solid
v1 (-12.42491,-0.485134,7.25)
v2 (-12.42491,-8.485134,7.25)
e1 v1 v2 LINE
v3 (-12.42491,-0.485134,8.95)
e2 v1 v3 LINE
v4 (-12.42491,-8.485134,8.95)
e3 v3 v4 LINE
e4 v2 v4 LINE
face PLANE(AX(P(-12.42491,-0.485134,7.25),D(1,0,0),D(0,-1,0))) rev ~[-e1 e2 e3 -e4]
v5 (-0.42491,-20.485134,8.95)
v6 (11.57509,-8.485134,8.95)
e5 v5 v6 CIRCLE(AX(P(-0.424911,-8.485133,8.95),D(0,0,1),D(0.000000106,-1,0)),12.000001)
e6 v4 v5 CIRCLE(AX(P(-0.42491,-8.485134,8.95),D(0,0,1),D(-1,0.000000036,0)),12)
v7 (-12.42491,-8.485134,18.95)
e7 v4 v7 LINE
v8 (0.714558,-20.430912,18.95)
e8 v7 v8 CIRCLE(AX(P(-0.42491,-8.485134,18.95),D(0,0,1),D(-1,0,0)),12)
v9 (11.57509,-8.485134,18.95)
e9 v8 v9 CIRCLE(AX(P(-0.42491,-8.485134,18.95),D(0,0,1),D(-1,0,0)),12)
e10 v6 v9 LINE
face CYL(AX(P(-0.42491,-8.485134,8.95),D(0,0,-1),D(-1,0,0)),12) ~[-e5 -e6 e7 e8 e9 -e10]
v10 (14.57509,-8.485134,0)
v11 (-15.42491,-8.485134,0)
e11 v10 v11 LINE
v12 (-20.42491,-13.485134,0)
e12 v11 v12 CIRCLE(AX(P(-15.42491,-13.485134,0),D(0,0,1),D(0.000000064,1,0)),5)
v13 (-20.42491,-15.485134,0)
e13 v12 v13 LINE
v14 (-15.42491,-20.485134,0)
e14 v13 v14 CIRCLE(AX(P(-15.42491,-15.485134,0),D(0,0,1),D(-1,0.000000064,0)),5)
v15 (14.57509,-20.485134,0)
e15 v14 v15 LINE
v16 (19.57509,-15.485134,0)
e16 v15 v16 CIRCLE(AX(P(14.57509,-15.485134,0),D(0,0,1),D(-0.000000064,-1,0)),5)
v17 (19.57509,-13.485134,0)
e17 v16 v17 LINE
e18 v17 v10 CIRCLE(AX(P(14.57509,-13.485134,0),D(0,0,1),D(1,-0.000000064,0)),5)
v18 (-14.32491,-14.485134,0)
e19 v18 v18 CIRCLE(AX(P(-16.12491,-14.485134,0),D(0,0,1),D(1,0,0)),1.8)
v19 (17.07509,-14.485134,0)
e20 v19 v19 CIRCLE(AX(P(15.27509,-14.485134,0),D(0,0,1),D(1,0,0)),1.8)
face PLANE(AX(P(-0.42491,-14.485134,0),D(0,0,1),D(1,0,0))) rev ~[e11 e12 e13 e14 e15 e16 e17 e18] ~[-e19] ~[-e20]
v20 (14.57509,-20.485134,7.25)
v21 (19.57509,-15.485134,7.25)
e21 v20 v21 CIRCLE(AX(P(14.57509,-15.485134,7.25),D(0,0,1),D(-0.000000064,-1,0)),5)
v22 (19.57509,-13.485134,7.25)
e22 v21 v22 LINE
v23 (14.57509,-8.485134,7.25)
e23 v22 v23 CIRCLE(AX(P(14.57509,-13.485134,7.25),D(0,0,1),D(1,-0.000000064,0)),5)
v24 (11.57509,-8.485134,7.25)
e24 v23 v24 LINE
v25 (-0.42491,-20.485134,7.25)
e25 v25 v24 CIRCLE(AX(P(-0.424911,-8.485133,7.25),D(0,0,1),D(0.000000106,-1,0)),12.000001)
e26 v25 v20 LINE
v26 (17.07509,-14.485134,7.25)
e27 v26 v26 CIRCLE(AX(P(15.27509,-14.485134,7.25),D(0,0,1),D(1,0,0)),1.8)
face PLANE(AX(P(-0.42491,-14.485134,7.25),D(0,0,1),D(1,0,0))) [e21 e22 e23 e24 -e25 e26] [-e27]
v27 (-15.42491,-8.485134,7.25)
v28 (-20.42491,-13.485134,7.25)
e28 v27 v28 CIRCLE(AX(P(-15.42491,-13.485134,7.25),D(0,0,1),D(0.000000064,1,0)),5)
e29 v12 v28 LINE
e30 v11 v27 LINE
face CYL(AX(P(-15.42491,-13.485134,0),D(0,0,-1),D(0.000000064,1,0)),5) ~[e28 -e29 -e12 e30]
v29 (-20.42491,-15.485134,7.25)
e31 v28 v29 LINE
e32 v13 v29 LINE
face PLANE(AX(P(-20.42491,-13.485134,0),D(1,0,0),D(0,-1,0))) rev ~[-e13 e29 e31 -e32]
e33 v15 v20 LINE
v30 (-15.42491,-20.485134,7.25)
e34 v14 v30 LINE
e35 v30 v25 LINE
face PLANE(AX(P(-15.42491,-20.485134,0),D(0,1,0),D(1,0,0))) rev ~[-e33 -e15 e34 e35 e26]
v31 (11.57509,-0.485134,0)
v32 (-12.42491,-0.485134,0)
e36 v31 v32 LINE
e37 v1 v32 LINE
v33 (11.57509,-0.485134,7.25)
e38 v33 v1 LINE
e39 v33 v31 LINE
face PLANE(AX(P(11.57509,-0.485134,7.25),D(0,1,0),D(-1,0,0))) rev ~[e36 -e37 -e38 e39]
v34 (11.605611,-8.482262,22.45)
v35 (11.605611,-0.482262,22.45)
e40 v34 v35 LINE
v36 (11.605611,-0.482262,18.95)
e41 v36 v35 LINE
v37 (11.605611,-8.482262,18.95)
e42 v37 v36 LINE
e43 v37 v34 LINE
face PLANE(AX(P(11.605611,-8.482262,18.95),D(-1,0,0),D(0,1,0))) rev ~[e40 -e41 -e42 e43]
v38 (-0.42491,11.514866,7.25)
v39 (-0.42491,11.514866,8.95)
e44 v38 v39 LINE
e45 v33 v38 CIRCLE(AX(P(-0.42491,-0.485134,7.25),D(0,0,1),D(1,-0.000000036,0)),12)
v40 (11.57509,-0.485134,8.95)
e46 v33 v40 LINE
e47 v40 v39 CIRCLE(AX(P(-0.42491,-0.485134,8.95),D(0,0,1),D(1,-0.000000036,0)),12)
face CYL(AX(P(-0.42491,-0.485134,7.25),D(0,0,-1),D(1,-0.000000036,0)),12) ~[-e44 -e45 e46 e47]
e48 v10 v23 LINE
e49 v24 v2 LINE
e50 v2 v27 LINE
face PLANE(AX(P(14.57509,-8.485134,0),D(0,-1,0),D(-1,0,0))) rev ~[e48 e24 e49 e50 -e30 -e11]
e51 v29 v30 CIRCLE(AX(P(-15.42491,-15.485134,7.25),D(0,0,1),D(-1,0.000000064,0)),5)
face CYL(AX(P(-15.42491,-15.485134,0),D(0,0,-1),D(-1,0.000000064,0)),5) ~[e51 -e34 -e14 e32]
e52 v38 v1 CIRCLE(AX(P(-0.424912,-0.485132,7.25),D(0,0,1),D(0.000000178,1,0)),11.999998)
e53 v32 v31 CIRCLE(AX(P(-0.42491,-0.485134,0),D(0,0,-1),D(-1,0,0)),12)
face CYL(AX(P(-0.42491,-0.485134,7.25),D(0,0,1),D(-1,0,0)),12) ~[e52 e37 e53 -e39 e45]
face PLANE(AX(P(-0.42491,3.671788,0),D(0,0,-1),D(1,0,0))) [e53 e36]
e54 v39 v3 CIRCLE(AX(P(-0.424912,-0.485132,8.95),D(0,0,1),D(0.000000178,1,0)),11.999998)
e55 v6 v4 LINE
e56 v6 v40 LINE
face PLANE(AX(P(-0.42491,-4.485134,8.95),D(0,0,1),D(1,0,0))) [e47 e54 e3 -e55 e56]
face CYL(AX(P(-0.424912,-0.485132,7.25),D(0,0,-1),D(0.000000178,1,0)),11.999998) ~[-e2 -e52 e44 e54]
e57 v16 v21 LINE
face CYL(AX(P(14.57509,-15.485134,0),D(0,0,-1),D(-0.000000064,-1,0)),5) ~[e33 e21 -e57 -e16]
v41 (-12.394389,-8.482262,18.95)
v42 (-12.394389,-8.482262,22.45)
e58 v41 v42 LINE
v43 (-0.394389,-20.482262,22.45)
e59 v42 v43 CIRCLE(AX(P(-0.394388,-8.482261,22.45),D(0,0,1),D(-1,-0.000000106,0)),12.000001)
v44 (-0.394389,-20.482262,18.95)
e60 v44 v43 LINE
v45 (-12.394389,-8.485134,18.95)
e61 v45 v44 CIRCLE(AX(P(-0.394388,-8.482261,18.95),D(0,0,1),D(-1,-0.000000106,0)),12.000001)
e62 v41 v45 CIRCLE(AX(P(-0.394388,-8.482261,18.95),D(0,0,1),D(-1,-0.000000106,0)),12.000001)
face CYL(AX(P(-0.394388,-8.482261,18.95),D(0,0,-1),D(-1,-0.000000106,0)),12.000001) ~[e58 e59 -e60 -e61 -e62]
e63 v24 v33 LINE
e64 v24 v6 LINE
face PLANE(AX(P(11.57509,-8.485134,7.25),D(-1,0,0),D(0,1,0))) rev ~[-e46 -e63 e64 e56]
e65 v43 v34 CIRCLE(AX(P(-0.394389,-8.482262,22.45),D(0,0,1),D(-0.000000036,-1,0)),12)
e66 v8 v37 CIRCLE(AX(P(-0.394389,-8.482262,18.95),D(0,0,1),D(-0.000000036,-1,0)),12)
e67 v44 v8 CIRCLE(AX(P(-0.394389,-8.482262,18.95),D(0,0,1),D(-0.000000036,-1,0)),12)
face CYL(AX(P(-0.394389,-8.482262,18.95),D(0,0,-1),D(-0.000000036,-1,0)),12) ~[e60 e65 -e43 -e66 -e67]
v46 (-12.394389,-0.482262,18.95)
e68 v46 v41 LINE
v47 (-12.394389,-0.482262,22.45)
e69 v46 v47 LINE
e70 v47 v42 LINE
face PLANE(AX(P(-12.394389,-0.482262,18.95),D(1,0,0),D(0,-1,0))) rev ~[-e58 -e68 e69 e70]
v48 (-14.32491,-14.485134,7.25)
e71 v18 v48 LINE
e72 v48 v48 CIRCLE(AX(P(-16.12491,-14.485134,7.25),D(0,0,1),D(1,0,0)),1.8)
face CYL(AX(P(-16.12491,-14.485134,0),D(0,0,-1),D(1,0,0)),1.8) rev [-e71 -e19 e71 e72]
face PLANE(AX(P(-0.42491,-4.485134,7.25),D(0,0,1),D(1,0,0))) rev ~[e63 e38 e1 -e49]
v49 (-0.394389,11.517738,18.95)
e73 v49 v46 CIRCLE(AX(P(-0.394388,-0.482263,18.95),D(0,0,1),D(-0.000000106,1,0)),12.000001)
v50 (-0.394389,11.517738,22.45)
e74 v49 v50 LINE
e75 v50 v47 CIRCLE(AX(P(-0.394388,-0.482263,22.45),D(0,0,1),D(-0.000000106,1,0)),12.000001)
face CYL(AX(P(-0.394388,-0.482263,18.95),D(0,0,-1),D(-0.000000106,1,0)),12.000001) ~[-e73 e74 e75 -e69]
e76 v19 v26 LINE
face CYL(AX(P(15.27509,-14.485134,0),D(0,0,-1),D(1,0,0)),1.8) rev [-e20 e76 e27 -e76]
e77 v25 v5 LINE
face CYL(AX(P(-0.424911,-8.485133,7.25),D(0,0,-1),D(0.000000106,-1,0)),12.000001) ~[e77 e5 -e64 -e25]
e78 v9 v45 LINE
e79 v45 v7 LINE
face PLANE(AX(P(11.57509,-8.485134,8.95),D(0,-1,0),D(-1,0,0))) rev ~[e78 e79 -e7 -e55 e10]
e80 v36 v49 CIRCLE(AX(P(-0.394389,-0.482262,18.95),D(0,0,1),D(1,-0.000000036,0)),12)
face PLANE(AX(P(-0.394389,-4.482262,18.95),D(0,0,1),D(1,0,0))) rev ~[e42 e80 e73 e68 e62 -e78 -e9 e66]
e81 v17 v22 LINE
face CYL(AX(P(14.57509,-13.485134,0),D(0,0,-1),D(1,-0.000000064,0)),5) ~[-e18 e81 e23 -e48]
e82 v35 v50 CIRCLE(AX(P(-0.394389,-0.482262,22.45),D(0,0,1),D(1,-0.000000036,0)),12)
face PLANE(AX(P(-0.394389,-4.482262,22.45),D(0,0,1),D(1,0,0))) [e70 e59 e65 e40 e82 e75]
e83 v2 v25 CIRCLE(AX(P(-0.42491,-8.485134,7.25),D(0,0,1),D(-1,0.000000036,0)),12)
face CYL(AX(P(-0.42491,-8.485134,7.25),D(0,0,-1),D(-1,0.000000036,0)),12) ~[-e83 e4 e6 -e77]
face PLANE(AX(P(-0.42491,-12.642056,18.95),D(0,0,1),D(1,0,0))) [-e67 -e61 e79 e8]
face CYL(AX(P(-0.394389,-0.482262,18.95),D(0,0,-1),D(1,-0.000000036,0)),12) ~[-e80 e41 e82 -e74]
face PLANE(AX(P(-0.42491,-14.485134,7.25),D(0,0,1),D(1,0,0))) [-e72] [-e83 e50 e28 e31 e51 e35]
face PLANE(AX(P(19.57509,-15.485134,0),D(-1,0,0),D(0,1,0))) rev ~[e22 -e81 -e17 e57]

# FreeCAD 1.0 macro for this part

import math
import FreeCAD as App
import Part
import Sketcher
from FreeCAD import Vector

doc = App.newDocument("Part")
body = doc.addObject("PartDesign::Body", "Body")

sketch1 = body.newObject("Sketcher::SketchObject", "Sketch")
sketch1.AttachmentSupport = (doc.getObject("XY_Plane"), [""])
sketch1.MapMode = "FlatFace"
sketch1.addGeometry([
    Part.LineSegment(Vector(14.57509, -8.485134, 0), Vector(-15.42491, -8.485134, 0)),
    Part.ArcOfCircle(Part.Circle(Vector(-15.42491, -13.485134, 0), Vector(0, 0, 1), 5), math.radians(89.999996), math.radians(180.000004)),
    Part.LineSegment(Vector(-20.42491, -13.485134, 0), Vector(-20.42491, -15.485134, 0)),
    Part.ArcOfCircle(Part.Circle(Vector(-15.42491, -15.485134, 0), Vector(0, 0, 1), 5), math.radians(179.999996), math.radians(270.000004)),
    Part.LineSegment(Vector(-15.42491, -20.485134, 0), Vector(14.57509, -20.485134, 0)),
    Part.ArcOfCircle(Part.Circle(Vector(14.57509, -15.485134, 0), Vector(0, 0, 1), 5), math.radians(-90.000004), math.radians(0.000004)),
    Part.LineSegment(Vector(19.57509, -15.485134, 0), Vector(19.57509, -13.485134, 0)),
    Part.ArcOfCircle(Part.Circle(Vector(14.57509, -13.485134, 0), Vector(0, 0, 1), 5), math.radians(-0.000004), math.radians(90.000004)),
    Part.Circle(Vector(-16.12491, -14.485134, 0), Vector(0, 0, 1), 1.8),
    Part.Circle(Vector(15.27509, -14.485134, 0), Vector(0, 0, 1), 1.8),
], False)
sketch1.addConstraint([
    Sketcher.Constraint("Tangent", 0, 2, 1, 1),
    Sketcher.Constraint("Tangent", 1, 2, 2, 1),
    Sketcher.Constraint("Tangent", 2, 2, 3, 1),
    Sketcher.Constraint("Tangent", 3, 2, 4, 1),
    Sketcher.Constraint("Tangent", 4, 2, 5, 1),
    Sketcher.Constraint("Tangent", 5, 2, 6, 1),
    Sketcher.Constraint("Tangent", 6, 2, 7, 1),
    Sketcher.Constraint("Tangent", 7, 2, 0, 1),
    Sketcher.Constraint("Horizontal", 0),
    Sketcher.Constraint("Vertical", 2),
    Sketcher.Constraint("Horizontal", 4),
    Sketcher.Constraint("Vertical", 6),
    Sketcher.Constraint("Equal", 1, 3),
    Sketcher.Constraint("Equal", 3, 5),
    Sketcher.Constraint("Equal", 5, 7),
    Sketcher.Constraint("Equal", 8, 9),
    Sketcher.Constraint("Horizontal", 8, 3, 9, 3),
    Sketcher.Constraint("Radius", 1, 5.0),
    Sketcher.Constraint("Diameter", 8, 3.6),
    Sketcher.Constraint("DistanceX", 0, 2, 0, 1, 30.0),
    Sketcher.Constraint("DistanceY", 2, 2, 2, 1, 2.0),
    Sketcher.Constraint("DistanceY", 8, 3, 1, 3, 1.0),
    Sketcher.Constraint("DistanceX", 8, 3, 1, 3, 0.7),
    Sketcher.Constraint("DistanceX", 5, 3, 9, 3, 0.7),
    Sketcher.Constraint("DistanceX", 1, 3, -1, 1, 15.42491),
    Sketcher.Constraint("DistanceY", 1, 3, -1, 1, 13.485134),
])
pad1 = body.newObject("PartDesign::Pad", "Pad")
pad1.Profile = sketch1
pad1.Length = 7.25

sketch2 = body.newObject("Sketcher::SketchObject", "Sketch001")
sketch2.AttachmentSupport = (doc.getObject("XY_Plane"), [""])
sketch2.MapMode = "FlatFace"
sketch2.AttachmentOffset = App.Placement(Vector(0, 0, 7.25), App.Rotation())
sketch2.addGeometry([
    Part.LineSegment(Vector(-12.42491, -0.485134, 0), Vector(-12.42491, -8.485134, 0)),
    Part.ArcOfCircle(Part.Circle(Vector(-0.42491, -8.485134, 0), Vector(0, 0, 1), 12), math.radians(179.999998), math.radians(270.000002)),
    Part.ArcOfCircle(Part.Circle(Vector(-0.424911, -8.485133, 0), Vector(0, 0, 1), 12.000001), math.radians(-89.999994), math.radians(-0.000006)),
    Part.LineSegment(Vector(11.57509, -8.485134, 0), Vector(11.57509, -0.485134, 0)),
    Part.ArcOfCircle(Part.Circle(Vector(-0.42491, -0.485134, 0), Vector(0, 0, 1), 12), math.radians(-0.000002), math.radians(90.000002)),
    Part.ArcOfCircle(Part.Circle(Vector(-0.424912, -0.485132, 0), Vector(0, 0, 1), 11.999998), math.radians(89.99999), math.radians(180.00001)),
], False)
sketch2.addConstraint([
    Sketcher.Constraint("Tangent", 0, 2, 1, 1),
    Sketcher.Constraint("Tangent", 1, 2, 2, 1),
    Sketcher.Constraint("Tangent", 2, 2, 3, 1),
    Sketcher.Constraint("Tangent", 3, 2, 4, 1),
    Sketcher.Constraint("Tangent", 4, 2, 5, 1),
    Sketcher.Constraint("Tangent", 5, 2, 0, 1),
    Sketcher.Constraint("Vertical", 0),
    Sketcher.Constraint("Vertical", 3),
    Sketcher.Constraint("Equal", 1, 2),
    Sketcher.Constraint("Equal", 2, 4),
    Sketcher.Constraint("Vertical", 4, 3, 1, 2),
    Sketcher.Constraint("Vertical", 1, 2, 4, 2),
    Sketcher.Constraint("Radius", 1, 12.0),
    Sketcher.Constraint("DistanceY", 0, 2, 0, 1, 8.0),
    Sketcher.Constraint("DistanceX", 1, 3, -1, 1, 0.42491),
    Sketcher.Constraint("DistanceY", 5, 3, -1, 1, 0.485132),
])
pad2 = body.newObject("PartDesign::Pad", "Pad001")
pad2.Profile = sketch2
pad2.Length = 1.7

sketch3 = body.newObject("Sketcher::SketchObject", "Sketch002")
sketch3.AttachmentSupport = (doc.getObject("XY_Plane"), [""])
sketch3.MapMode = "FlatFace"
sketch3.AttachmentOffset = App.Placement(Vector(0, 0, 7.25), App.Rotation())
sketch3.addGeometry([
    Part.LineSegment(Vector(11.57509, -0.485134, 0), Vector(-12.42491, -0.485134, 0)),
    Part.ArcOfCircle(Part.Circle(Vector(-0.42491, -0.485134, 0), Vector(0, 0, 1), 12), math.radians(0), math.radians(180)),
], False)
sketch3.addConstraint([
    Sketcher.Constraint("Coincident", 0, 1, 1, 1),
    Sketcher.Constraint("Coincident", 1, 2, 0, 2),
    Sketcher.Constraint("Horizontal", 0),
    Sketcher.Constraint("Horizontal", 1, 3, 0, 1),
    Sketcher.Constraint("Radius", 1, 12.0),
    Sketcher.Constraint("DistanceX", 1, 3, -1, 1, 0.42491),
    Sketcher.Constraint("DistanceY", 1, 3, -1, 1, 0.485134),
])
pad3 = body.newObject("PartDesign::Pad", "Pad002")
pad3.Profile = sketch3
pad3.Length = 7.25
pad3.Reversed = True

sketch4 = body.newObject("Sketcher::SketchObject", "Sketch003")
sketch4.AttachmentSupport = (doc.getObject("XY_Plane"), [""])
sketch4.MapMode = "FlatFace"
sketch4.AttachmentOffset = App.Placement(Vector(0, 0, 8.95), App.Rotation())
sketch4.addGeometry([
    Part.LineSegment(Vector(11.57509, -8.485134, 0), Vector(-12.42491, -8.485134, 0)),
    Part.ArcOfCircle(Part.Circle(Vector(-0.42491, -8.485134, 0), Vector(0, 0, 1), 12), math.radians(180), math.radians(360)),
], False)
sketch4.addConstraint([
    Sketcher.Constraint("Coincident", 0, 1, 1, 2),
    Sketcher.Constraint("Coincident", 1, 1, 0, 2),
    Sketcher.Constraint("Horizontal", 0),
    Sketcher.Constraint("Horizontal", 1, 3, 0, 1),
    Sketcher.Constraint("Radius", 1, 12.0),
    Sketcher.Constraint("DistanceX", 1, 3, -1, 1, 0.42491),
    Sketcher.Constraint("DistanceY", 1, 3, -1, 1, 8.485134),
])
pad4 = body.newObject("PartDesign::Pad", "Pad003")
pad4.Profile = sketch4
pad4.Length = 10

sketch5 = body.newObject("Sketcher::SketchObject", "Sketch004")
sketch5.AttachmentSupport = (doc.getObject("XY_Plane"), [""])
sketch5.MapMode = "FlatFace"
sketch5.AttachmentOffset = App.Placement(Vector(0, 0, 18.95), App.Rotation())
sketch5.addGeometry([
    Part.ArcOfCircle(Part.Circle(Vector(-0.394388, -0.482263, 0), Vector(0, 0, 1), 12.000001), math.radians(90.000006), math.radians(179.999994)),
    Part.LineSegment(Vector(-12.394389, -0.482262, 0), Vector(-12.394389, -8.482262, 0)),
    Part.ArcOfCircle(Part.Circle(Vector(-0.394388, -8.482261, 0), Vector(0, 0, 1), 12.000001), math.radians(-179.999994), math.radians(-90.000006)),
    Part.ArcOfCircle(Part.Circle(Vector(-0.394389, -8.482262, 0), Vector(0, 0, 1), 12), math.radians(-90.000002), math.radians(0.000002)),
    Part.LineSegment(Vector(11.605611, -8.482262, 0), Vector(11.605611, -0.482262, 0)),
    Part.ArcOfCircle(Part.Circle(Vector(-0.394389, -0.482262, 0), Vector(0, 0, 1), 12), math.radians(-0.000002), math.radians(90.000002)),
], False)
sketch5.addConstraint([
    Sketcher.Constraint("Tangent", 0, 2, 1, 1),
    Sketcher.Constraint("Tangent", 1, 2, 2, 1),
    Sketcher.Constraint("Tangent", 2, 2, 3, 1),
    Sketcher.Constraint("Tangent", 3, 2, 4, 1),
    Sketcher.Constraint("Tangent", 4, 2, 5, 1),
    Sketcher.Constraint("Tangent", 5, 2, 0, 1),
    Sketcher.Constraint("Vertical", 1),
    Sketcher.Constraint("Vertical", 4),
    Sketcher.Constraint("Equal", 0, 2),
    Sketcher.Constraint("Equal", 2, 3),
    Sketcher.Constraint("Vertical", 5, 3, 2, 2),
    Sketcher.Constraint("Vertical", 2, 2, 5, 2),
    Sketcher.Constraint("Radius", 0, 12.000001),
    Sketcher.Constraint("DistanceY", 1, 2, 1, 1, 8.0),
    Sketcher.Constraint("DistanceY", 2, 3, -1, 1, 8.482261),
    Sketcher.Constraint("DistanceX", 3, 3, -1, 1, 0.394389),
])
pad5 = body.newObject("PartDesign::Pad", "Pad004")
pad5.Profile = sketch5
pad5.Length = 3.5

doc.recompute()
